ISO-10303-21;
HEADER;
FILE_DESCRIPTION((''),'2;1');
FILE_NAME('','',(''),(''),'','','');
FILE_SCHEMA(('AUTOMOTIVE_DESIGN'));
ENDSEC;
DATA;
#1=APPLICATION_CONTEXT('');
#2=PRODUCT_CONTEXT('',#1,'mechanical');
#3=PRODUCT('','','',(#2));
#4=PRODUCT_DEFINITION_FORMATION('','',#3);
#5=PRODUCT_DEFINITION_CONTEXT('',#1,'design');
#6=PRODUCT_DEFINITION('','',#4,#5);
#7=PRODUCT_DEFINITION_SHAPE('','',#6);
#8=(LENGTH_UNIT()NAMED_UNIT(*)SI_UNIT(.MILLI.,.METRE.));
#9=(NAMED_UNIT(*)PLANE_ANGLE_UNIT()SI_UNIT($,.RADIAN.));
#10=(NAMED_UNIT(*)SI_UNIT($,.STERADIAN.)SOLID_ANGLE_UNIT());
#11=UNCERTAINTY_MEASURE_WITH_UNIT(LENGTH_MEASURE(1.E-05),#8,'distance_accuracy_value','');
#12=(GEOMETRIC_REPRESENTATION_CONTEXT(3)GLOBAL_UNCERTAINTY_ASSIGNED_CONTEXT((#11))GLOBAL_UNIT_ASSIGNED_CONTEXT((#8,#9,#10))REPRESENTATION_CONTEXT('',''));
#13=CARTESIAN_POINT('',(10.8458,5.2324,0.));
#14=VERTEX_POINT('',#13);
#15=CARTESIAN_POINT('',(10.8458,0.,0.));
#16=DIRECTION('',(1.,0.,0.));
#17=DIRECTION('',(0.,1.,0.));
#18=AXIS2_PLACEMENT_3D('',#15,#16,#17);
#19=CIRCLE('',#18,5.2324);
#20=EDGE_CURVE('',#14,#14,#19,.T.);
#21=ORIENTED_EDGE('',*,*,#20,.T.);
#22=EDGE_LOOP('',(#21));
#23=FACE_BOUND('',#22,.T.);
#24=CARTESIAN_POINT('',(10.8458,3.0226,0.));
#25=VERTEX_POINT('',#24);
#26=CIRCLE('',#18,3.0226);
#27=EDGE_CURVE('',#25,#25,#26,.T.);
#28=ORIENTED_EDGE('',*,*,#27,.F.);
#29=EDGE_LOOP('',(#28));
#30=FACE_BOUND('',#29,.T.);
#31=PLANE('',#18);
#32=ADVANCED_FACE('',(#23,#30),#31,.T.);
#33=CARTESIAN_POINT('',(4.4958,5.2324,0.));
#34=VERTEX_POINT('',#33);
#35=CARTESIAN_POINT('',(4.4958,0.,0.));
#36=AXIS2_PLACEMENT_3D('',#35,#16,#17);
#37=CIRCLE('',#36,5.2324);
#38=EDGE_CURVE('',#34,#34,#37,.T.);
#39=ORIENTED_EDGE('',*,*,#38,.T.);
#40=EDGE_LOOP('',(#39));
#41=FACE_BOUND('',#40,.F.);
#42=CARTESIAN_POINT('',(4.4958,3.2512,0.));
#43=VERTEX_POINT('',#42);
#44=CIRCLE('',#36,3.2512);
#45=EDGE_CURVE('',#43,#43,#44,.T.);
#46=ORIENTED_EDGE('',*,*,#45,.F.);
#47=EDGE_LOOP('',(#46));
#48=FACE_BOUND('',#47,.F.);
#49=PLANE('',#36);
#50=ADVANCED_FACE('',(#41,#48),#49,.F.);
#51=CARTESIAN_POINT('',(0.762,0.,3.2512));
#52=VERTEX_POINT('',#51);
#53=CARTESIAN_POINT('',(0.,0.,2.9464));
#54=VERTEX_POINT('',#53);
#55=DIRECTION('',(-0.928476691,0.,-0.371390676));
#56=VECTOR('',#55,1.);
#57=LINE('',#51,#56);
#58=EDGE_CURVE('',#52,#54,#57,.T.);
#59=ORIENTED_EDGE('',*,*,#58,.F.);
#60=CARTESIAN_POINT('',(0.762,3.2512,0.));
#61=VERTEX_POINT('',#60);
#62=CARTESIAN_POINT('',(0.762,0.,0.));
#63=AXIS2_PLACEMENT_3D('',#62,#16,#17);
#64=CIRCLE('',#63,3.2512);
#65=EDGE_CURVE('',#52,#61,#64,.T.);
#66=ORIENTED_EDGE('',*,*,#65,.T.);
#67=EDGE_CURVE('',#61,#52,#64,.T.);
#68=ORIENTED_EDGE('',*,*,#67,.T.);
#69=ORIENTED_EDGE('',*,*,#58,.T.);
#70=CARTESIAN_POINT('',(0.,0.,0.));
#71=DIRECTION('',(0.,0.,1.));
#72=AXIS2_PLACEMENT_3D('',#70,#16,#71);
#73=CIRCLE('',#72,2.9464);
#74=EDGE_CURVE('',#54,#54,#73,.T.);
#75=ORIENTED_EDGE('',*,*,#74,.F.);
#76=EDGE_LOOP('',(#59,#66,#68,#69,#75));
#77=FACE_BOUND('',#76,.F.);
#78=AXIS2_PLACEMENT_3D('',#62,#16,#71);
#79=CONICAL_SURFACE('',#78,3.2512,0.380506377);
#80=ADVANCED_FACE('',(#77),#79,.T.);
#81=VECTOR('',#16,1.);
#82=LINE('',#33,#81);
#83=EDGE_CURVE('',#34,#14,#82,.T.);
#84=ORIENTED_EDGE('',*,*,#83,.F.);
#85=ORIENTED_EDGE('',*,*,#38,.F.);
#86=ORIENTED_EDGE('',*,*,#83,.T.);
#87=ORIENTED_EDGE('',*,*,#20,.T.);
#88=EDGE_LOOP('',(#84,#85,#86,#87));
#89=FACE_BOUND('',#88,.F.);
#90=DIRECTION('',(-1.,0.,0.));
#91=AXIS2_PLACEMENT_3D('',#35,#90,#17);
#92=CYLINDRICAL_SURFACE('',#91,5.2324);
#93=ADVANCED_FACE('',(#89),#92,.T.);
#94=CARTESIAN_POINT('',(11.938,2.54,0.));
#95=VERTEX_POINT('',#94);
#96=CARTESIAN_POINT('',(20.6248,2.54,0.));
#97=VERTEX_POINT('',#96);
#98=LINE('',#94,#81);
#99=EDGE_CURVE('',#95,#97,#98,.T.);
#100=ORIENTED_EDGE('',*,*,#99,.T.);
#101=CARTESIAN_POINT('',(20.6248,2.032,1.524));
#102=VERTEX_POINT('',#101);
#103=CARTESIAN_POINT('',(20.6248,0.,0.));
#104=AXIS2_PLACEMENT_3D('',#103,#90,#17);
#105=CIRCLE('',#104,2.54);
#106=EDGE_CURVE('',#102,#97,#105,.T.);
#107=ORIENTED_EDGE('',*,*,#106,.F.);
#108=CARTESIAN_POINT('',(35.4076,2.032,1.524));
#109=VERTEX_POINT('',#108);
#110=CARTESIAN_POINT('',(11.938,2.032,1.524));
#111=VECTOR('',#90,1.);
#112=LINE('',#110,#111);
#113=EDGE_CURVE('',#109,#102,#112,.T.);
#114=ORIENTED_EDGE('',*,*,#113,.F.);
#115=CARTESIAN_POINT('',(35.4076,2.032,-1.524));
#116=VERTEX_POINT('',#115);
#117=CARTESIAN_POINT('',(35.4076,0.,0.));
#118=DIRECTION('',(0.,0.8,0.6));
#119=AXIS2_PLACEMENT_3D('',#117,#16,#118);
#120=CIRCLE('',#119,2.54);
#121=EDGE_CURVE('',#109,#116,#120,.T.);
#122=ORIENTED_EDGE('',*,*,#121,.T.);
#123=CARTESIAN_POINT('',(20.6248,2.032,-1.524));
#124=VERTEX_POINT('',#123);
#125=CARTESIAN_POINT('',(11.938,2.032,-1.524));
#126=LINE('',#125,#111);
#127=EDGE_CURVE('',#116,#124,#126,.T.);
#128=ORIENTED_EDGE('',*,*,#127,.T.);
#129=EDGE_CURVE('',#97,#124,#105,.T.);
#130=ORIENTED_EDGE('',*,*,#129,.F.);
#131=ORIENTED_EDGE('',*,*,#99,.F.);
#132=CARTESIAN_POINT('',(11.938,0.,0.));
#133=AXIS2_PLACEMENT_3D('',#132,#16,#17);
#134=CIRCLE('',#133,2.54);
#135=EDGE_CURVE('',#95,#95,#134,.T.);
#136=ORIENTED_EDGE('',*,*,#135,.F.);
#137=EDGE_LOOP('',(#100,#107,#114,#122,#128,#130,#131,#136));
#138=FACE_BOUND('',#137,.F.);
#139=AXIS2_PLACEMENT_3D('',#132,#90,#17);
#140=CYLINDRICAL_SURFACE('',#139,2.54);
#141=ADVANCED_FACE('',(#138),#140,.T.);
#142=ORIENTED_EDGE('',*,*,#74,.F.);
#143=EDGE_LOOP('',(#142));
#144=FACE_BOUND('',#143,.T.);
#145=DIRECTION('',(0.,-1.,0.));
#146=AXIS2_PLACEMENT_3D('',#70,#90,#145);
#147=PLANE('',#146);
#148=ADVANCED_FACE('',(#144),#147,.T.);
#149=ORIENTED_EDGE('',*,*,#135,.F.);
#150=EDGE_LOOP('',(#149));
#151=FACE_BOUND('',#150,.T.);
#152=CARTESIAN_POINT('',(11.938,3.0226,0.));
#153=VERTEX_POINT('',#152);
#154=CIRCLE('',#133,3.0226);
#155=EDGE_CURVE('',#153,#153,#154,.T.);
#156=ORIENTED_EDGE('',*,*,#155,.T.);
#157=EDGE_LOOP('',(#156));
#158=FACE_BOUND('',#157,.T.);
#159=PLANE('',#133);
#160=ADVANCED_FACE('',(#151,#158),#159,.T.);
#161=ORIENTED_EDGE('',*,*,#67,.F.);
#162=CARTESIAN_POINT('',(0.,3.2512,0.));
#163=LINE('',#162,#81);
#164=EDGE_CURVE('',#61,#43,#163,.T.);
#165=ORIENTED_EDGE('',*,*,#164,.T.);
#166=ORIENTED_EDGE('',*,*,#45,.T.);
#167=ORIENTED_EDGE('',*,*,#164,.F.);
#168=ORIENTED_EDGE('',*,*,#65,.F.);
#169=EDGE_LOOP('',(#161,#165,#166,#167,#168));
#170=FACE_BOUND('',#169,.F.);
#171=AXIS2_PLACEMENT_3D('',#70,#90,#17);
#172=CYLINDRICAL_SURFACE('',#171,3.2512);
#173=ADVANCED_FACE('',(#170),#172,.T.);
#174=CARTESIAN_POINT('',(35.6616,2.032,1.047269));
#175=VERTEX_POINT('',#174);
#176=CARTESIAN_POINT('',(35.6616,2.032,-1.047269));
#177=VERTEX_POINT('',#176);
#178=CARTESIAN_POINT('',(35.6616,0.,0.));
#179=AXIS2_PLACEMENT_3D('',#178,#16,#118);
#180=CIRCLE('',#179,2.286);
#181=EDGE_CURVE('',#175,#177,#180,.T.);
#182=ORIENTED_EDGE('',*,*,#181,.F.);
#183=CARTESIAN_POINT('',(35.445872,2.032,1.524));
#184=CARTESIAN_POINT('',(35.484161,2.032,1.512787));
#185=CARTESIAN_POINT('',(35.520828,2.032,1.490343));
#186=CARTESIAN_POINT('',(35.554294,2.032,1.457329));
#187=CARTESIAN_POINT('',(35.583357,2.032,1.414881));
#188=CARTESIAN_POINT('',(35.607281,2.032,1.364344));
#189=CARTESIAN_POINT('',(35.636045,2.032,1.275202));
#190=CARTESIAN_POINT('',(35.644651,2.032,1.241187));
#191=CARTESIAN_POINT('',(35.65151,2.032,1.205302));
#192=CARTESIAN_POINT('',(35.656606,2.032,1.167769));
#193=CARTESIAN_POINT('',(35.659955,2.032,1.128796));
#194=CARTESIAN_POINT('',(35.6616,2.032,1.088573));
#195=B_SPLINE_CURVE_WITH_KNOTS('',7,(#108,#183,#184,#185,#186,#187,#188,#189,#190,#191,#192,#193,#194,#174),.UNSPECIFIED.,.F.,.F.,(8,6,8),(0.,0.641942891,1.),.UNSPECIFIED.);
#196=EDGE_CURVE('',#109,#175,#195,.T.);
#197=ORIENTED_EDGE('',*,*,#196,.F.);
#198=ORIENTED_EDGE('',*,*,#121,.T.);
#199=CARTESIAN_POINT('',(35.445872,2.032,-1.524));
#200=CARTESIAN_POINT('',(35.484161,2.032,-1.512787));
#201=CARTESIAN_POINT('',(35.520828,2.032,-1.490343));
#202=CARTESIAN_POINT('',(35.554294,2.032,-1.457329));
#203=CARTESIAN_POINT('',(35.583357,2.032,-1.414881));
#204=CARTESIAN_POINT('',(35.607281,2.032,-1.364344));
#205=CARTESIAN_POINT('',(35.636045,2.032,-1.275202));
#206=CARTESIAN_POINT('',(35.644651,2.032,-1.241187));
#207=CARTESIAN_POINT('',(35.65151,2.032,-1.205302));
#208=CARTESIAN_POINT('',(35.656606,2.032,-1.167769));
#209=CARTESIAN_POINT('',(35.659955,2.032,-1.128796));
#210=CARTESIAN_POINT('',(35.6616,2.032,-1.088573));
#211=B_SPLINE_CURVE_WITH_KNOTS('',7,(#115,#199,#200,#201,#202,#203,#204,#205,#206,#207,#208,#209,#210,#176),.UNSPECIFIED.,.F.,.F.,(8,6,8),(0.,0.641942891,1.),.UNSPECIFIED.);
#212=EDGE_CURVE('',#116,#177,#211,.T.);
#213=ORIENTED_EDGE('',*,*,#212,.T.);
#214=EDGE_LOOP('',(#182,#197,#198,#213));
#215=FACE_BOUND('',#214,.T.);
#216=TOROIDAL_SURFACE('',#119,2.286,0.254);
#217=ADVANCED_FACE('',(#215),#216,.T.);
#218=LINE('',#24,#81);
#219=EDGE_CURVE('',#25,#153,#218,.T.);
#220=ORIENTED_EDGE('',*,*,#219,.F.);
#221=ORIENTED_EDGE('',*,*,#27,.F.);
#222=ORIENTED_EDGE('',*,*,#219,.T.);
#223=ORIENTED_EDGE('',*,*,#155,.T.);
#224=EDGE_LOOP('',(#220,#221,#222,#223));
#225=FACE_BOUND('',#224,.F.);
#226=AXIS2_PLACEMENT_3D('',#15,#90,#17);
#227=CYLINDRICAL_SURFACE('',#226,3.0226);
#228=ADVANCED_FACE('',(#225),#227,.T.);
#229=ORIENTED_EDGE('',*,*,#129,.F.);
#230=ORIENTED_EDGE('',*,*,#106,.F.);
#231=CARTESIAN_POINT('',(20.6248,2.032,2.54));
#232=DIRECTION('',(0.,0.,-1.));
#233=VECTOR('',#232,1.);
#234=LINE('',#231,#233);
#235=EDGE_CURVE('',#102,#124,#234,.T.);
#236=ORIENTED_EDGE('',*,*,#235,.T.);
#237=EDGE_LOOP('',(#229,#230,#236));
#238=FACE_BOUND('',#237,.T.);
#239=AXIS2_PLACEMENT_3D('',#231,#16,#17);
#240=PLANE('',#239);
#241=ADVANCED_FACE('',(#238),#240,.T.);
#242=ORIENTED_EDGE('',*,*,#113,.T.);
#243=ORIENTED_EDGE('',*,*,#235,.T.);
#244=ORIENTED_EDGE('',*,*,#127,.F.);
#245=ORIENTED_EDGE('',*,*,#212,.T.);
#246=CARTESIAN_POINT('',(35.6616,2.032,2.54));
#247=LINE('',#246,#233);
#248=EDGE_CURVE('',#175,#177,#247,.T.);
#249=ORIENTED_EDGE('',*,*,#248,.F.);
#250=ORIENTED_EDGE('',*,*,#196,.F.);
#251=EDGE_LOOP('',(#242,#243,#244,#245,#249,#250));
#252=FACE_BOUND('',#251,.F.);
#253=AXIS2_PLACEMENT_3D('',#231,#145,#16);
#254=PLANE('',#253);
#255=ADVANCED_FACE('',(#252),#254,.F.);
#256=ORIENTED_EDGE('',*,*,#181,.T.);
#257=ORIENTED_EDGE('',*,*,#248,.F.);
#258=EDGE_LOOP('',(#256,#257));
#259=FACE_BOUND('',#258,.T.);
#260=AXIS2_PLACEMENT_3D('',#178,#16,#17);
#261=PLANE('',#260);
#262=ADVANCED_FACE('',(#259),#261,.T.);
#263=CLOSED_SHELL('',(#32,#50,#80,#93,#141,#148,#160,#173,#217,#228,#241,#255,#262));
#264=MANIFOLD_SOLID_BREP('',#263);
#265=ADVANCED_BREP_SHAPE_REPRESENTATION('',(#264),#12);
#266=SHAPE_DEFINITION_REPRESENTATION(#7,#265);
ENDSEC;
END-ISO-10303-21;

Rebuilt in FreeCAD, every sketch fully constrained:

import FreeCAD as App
import Part
import Sketcher
Q = App.Units.Quantity


def edges_at(feature, points):
    """Names of the edges that pass closest to the given points."""
    edges = feature.Shape.Edges
    near = lambda p: min(range(len(edges)), key=lambda i: edges[i].distToShape(Part.Vertex(*p))[0])
    return sorted({f"Edge{near(p) + 1}" for p in points})


def add_polygon(sketch, points):
    """Adds a closed chain of lines whose ends are joined by coincident constraints."""
    first, n = sketch.GeometryCount, len(points)
    for a, b in zip(points, points[1:] + points[:1]):
        sketch.addGeometry(Part.LineSegment(App.Vector(*a, 0), App.Vector(*b, 0)), False)
    for i in range(n):
        sketch.addConstraint(Sketcher.Constraint("Coincident", first + i, 2, first + (i + 1) % n, 1))

doc = App.newDocument("Part")
body = doc.addObject("PartDesign::Body", "Body")

# Sketch on YZ plane
sketch1 = doc.addObject("Sketcher::SketchObject", "Sketch")
body.addObject(sketch1)
sketch1.AttachmentSupport = (doc.YZ_Plane, [""])
sketch1.MapMode = "FlatFace"
sketch1.addGeometry(Part.Circle(App.Vector(0, 0, 0), App.Vector(0, 0, 1), 3.3), False)
sketch1.addConstraint([
    Sketcher.Constraint("Coincident", 0, 3, -1, 1),
    Sketcher.Constraint("Diameter", 0, Q("0.256 in")),
])
pad1 = doc.addObject("PartDesign::Pad", "Pad")
body.addObject(pad1)
pad1.Profile = sketch1
pad1.Length = Q("0.177 in")

# Sketch on YZ plane
sketch2 = doc.addObject("Sketcher::SketchObject", "Sketch001")
body.addObject(sketch2)
sketch2.AttachmentSupport = (doc.YZ_Plane, [""])
sketch2.MapMode = "FlatFace"
sketch2.AttachmentOffset = App.Placement(App.Vector(0, 0, 0.177 * 25.4), App.Rotation())
sketch2.addGeometry(Part.Circle(App.Vector(0, 0, 0), App.Vector(0, 0, 1), 5), False)
sketch2.addConstraint([
    Sketcher.Constraint("Coincident", 0, 3, -1, 1),
    Sketcher.Constraint("Diameter", 0, Q("0.412 in")),
])
pad2 = doc.addObject("PartDesign::Pad", "Pad001")
body.addObject(pad2)
pad2.Profile = sketch2
pad2.Length = Q("0.25 in")

# Sketch on YZ plane
sketch3 = doc.addObject("Sketcher::SketchObject", "Sketch002")
body.addObject(sketch3)
sketch3.AttachmentSupport = (doc.YZ_Plane, [""])
sketch3.MapMode = "FlatFace"
sketch3.AttachmentOffset = App.Placement(App.Vector(0, 0, 0.427 * 25.4), App.Rotation())
sketch3.addGeometry(Part.Circle(App.Vector(0, 0, 0), App.Vector(0, 0, 1), 3), False)
sketch3.addConstraint([
    Sketcher.Constraint("Coincident", 0, 3, -1, 1),
    Sketcher.Constraint("Diameter", 0, Q("0.238 in")),
])
pad3 = doc.addObject("PartDesign::Pad", "Pad002")
body.addObject(pad3)
pad3.Profile = sketch3
pad3.Length = Q("0.043 in")

# Sketch on YZ plane
sketch4 = doc.addObject("Sketcher::SketchObject", "Sketch003")
body.addObject(sketch4)
sketch4.AttachmentSupport = (doc.YZ_Plane, [""])
sketch4.MapMode = "FlatFace"
sketch4.AttachmentOffset = App.Placement(App.Vector(0, 0, 0.47 * 25.4), App.Rotation())
sketch4.addGeometry(Part.Circle(App.Vector(0, 0, 0), App.Vector(0, 0, 1), 2.5), False)
sketch4.addConstraint([
    Sketcher.Constraint("Coincident", 0, 3, -1, 1),
    Sketcher.Constraint("Diameter", 0, Q("0.2 in")),
])
pad4 = doc.addObject("PartDesign::Pad", "Pad003")
body.addObject(pad4)
pad4.Profile = sketch4
pad4.Length = Q("0.934 in")

# Sketch on XY plane
sketch5 = doc.addObject("Sketcher::SketchObject", "Sketch004")
body.addObject(sketch5)
sketch5.AttachmentSupport = (doc.XY_Plane, [""])
sketch5.MapMode = "FlatFace"
sketch5.AttachmentOffset = App.Placement(App.Vector(0, 0, 0.1 * 25.4), App.Rotation())
add_polygon(sketch5, [(20.6, 2.5), (20.6, 2), (35.7, 2), (35.7, 2.5)])  # lines 0-3
sketch5.addConstraint([
    Sketcher.Constraint("Vertical", 0),
    Sketcher.Constraint("Horizontal", 1),
    Sketcher.Constraint("Vertical", 2),
    Sketcher.Constraint("Horizontal", 3),
    Sketcher.Constraint("DistanceY", 0, 2, 0, 1, Q("0.02 in")),
    Sketcher.Constraint("DistanceY", -1, 1, 2, 2, Q("0.1 in")),
    Sketcher.Constraint("DistanceX", 1, 1, 1, 2, Q("0.592 in")),
    Sketcher.Constraint("DistanceX", -1, 1, 0, 2, Q("0.812 in")),
])
pocket1 = doc.addObject("PartDesign::Pocket", "Pocket")
body.addObject(pocket1)
pocket1.Profile = sketch5
pocket1.Type = "ThroughAll"
doc.recompute()

fillet = doc.addObject("PartDesign::Fillet", "Fillet")
body.addObject(fillet)
fillet.Base = (pocket1, edges_at(pocket1, [(35.662, -2.54, 0)]))
fillet.Radius = Q("0.01 in")

# Sketch on YZ plane
sketch6 = doc.addObject("Sketcher::SketchObject", "Sketch005")
body.addObject(sketch6)
sketch6.AttachmentSupport = (doc.YZ_Plane, [""])
sketch6.MapMode = "FlatFace"
sketch6.addGeometry(Part.Circle(App.Vector(0, 0, 0), App.Vector(0, 0, 1), 3.3), False)
sketch6.addConstraint([
    Sketcher.Constraint("Coincident", 0, 3, -1, 1),
    Sketcher.Constraint("Diameter", 0, Q("0.256 in")),
])
pocket2 = doc.addObject("PartDesign::Pocket", "Pocket001")
body.addObject(pocket2)
pocket2.Profile = sketch6
pocket2.Length = Q("0.03 in")
pocket2.Reversed = True

# Sketch on YZ plane
sketch7 = doc.addObject("Sketcher::SketchObject", "Sketch006")
body.addObject(sketch7)
sketch7.AttachmentSupport = (doc.YZ_Plane, [""])
sketch7.MapMode = "FlatFace"
sketch7.AttachmentOffset = App.Placement(App.Vector(0, 0, 0.03 * 25.4), App.Rotation())
sketch7.addGeometry(Part.Circle(App.Vector(0, 0, 0), App.Vector(0, 0, 1), 2.9), False)
sketch7.addConstraint([
    Sketcher.Constraint("Coincident", 0, 3, -1, 1),
    Sketcher.Constraint("Diameter", 0, Q("0.232 in")),
])
pad5 = doc.addObject("PartDesign::Pad", "Pad004")
body.addObject(pad5)
pad5.Profile = sketch7
pad5.Length = Q("0.03 in")
pad5.Reversed = True

# Sketch on XZ plane
sketch8 = doc.addObject("Sketcher::SketchObject", "Sketch007")
body.addObject(sketch8)
sketch8.AttachmentSupport = (doc.XZ_Plane, [""])
sketch8.MapMode = "FlatFace"
add_polygon(sketch8, [(0, 2.95), (0.76, 2.95), (0.76, 3.25)])  # lines 0-2
sketch8.addConstraint([
    Sketcher.Constraint("Horizontal", 0),
    Sketcher.Constraint("Vertical", 1),
    Sketcher.Constraint("PointOnObject", 2, 2, -2),
    Sketcher.Constraint("DistanceX", 0, 1, 0, 2, Q("0.03 in")),
    Sketcher.Constraint("DistanceY", 1, 1, 1, 2, Q("0.012 in")),
    Sketcher.Constraint("DistanceY", -1, 1, 0, 2, Q("0.116 in")),
])
revolution = doc.addObject("PartDesign::Revolution", "Revolution")
body.addObject(revolution)
revolution.Profile = sketch8
revolution.ReferenceAxis = (sketch8, ["H_Axis"])
revolution.Angle = 360

doc.recompute()
